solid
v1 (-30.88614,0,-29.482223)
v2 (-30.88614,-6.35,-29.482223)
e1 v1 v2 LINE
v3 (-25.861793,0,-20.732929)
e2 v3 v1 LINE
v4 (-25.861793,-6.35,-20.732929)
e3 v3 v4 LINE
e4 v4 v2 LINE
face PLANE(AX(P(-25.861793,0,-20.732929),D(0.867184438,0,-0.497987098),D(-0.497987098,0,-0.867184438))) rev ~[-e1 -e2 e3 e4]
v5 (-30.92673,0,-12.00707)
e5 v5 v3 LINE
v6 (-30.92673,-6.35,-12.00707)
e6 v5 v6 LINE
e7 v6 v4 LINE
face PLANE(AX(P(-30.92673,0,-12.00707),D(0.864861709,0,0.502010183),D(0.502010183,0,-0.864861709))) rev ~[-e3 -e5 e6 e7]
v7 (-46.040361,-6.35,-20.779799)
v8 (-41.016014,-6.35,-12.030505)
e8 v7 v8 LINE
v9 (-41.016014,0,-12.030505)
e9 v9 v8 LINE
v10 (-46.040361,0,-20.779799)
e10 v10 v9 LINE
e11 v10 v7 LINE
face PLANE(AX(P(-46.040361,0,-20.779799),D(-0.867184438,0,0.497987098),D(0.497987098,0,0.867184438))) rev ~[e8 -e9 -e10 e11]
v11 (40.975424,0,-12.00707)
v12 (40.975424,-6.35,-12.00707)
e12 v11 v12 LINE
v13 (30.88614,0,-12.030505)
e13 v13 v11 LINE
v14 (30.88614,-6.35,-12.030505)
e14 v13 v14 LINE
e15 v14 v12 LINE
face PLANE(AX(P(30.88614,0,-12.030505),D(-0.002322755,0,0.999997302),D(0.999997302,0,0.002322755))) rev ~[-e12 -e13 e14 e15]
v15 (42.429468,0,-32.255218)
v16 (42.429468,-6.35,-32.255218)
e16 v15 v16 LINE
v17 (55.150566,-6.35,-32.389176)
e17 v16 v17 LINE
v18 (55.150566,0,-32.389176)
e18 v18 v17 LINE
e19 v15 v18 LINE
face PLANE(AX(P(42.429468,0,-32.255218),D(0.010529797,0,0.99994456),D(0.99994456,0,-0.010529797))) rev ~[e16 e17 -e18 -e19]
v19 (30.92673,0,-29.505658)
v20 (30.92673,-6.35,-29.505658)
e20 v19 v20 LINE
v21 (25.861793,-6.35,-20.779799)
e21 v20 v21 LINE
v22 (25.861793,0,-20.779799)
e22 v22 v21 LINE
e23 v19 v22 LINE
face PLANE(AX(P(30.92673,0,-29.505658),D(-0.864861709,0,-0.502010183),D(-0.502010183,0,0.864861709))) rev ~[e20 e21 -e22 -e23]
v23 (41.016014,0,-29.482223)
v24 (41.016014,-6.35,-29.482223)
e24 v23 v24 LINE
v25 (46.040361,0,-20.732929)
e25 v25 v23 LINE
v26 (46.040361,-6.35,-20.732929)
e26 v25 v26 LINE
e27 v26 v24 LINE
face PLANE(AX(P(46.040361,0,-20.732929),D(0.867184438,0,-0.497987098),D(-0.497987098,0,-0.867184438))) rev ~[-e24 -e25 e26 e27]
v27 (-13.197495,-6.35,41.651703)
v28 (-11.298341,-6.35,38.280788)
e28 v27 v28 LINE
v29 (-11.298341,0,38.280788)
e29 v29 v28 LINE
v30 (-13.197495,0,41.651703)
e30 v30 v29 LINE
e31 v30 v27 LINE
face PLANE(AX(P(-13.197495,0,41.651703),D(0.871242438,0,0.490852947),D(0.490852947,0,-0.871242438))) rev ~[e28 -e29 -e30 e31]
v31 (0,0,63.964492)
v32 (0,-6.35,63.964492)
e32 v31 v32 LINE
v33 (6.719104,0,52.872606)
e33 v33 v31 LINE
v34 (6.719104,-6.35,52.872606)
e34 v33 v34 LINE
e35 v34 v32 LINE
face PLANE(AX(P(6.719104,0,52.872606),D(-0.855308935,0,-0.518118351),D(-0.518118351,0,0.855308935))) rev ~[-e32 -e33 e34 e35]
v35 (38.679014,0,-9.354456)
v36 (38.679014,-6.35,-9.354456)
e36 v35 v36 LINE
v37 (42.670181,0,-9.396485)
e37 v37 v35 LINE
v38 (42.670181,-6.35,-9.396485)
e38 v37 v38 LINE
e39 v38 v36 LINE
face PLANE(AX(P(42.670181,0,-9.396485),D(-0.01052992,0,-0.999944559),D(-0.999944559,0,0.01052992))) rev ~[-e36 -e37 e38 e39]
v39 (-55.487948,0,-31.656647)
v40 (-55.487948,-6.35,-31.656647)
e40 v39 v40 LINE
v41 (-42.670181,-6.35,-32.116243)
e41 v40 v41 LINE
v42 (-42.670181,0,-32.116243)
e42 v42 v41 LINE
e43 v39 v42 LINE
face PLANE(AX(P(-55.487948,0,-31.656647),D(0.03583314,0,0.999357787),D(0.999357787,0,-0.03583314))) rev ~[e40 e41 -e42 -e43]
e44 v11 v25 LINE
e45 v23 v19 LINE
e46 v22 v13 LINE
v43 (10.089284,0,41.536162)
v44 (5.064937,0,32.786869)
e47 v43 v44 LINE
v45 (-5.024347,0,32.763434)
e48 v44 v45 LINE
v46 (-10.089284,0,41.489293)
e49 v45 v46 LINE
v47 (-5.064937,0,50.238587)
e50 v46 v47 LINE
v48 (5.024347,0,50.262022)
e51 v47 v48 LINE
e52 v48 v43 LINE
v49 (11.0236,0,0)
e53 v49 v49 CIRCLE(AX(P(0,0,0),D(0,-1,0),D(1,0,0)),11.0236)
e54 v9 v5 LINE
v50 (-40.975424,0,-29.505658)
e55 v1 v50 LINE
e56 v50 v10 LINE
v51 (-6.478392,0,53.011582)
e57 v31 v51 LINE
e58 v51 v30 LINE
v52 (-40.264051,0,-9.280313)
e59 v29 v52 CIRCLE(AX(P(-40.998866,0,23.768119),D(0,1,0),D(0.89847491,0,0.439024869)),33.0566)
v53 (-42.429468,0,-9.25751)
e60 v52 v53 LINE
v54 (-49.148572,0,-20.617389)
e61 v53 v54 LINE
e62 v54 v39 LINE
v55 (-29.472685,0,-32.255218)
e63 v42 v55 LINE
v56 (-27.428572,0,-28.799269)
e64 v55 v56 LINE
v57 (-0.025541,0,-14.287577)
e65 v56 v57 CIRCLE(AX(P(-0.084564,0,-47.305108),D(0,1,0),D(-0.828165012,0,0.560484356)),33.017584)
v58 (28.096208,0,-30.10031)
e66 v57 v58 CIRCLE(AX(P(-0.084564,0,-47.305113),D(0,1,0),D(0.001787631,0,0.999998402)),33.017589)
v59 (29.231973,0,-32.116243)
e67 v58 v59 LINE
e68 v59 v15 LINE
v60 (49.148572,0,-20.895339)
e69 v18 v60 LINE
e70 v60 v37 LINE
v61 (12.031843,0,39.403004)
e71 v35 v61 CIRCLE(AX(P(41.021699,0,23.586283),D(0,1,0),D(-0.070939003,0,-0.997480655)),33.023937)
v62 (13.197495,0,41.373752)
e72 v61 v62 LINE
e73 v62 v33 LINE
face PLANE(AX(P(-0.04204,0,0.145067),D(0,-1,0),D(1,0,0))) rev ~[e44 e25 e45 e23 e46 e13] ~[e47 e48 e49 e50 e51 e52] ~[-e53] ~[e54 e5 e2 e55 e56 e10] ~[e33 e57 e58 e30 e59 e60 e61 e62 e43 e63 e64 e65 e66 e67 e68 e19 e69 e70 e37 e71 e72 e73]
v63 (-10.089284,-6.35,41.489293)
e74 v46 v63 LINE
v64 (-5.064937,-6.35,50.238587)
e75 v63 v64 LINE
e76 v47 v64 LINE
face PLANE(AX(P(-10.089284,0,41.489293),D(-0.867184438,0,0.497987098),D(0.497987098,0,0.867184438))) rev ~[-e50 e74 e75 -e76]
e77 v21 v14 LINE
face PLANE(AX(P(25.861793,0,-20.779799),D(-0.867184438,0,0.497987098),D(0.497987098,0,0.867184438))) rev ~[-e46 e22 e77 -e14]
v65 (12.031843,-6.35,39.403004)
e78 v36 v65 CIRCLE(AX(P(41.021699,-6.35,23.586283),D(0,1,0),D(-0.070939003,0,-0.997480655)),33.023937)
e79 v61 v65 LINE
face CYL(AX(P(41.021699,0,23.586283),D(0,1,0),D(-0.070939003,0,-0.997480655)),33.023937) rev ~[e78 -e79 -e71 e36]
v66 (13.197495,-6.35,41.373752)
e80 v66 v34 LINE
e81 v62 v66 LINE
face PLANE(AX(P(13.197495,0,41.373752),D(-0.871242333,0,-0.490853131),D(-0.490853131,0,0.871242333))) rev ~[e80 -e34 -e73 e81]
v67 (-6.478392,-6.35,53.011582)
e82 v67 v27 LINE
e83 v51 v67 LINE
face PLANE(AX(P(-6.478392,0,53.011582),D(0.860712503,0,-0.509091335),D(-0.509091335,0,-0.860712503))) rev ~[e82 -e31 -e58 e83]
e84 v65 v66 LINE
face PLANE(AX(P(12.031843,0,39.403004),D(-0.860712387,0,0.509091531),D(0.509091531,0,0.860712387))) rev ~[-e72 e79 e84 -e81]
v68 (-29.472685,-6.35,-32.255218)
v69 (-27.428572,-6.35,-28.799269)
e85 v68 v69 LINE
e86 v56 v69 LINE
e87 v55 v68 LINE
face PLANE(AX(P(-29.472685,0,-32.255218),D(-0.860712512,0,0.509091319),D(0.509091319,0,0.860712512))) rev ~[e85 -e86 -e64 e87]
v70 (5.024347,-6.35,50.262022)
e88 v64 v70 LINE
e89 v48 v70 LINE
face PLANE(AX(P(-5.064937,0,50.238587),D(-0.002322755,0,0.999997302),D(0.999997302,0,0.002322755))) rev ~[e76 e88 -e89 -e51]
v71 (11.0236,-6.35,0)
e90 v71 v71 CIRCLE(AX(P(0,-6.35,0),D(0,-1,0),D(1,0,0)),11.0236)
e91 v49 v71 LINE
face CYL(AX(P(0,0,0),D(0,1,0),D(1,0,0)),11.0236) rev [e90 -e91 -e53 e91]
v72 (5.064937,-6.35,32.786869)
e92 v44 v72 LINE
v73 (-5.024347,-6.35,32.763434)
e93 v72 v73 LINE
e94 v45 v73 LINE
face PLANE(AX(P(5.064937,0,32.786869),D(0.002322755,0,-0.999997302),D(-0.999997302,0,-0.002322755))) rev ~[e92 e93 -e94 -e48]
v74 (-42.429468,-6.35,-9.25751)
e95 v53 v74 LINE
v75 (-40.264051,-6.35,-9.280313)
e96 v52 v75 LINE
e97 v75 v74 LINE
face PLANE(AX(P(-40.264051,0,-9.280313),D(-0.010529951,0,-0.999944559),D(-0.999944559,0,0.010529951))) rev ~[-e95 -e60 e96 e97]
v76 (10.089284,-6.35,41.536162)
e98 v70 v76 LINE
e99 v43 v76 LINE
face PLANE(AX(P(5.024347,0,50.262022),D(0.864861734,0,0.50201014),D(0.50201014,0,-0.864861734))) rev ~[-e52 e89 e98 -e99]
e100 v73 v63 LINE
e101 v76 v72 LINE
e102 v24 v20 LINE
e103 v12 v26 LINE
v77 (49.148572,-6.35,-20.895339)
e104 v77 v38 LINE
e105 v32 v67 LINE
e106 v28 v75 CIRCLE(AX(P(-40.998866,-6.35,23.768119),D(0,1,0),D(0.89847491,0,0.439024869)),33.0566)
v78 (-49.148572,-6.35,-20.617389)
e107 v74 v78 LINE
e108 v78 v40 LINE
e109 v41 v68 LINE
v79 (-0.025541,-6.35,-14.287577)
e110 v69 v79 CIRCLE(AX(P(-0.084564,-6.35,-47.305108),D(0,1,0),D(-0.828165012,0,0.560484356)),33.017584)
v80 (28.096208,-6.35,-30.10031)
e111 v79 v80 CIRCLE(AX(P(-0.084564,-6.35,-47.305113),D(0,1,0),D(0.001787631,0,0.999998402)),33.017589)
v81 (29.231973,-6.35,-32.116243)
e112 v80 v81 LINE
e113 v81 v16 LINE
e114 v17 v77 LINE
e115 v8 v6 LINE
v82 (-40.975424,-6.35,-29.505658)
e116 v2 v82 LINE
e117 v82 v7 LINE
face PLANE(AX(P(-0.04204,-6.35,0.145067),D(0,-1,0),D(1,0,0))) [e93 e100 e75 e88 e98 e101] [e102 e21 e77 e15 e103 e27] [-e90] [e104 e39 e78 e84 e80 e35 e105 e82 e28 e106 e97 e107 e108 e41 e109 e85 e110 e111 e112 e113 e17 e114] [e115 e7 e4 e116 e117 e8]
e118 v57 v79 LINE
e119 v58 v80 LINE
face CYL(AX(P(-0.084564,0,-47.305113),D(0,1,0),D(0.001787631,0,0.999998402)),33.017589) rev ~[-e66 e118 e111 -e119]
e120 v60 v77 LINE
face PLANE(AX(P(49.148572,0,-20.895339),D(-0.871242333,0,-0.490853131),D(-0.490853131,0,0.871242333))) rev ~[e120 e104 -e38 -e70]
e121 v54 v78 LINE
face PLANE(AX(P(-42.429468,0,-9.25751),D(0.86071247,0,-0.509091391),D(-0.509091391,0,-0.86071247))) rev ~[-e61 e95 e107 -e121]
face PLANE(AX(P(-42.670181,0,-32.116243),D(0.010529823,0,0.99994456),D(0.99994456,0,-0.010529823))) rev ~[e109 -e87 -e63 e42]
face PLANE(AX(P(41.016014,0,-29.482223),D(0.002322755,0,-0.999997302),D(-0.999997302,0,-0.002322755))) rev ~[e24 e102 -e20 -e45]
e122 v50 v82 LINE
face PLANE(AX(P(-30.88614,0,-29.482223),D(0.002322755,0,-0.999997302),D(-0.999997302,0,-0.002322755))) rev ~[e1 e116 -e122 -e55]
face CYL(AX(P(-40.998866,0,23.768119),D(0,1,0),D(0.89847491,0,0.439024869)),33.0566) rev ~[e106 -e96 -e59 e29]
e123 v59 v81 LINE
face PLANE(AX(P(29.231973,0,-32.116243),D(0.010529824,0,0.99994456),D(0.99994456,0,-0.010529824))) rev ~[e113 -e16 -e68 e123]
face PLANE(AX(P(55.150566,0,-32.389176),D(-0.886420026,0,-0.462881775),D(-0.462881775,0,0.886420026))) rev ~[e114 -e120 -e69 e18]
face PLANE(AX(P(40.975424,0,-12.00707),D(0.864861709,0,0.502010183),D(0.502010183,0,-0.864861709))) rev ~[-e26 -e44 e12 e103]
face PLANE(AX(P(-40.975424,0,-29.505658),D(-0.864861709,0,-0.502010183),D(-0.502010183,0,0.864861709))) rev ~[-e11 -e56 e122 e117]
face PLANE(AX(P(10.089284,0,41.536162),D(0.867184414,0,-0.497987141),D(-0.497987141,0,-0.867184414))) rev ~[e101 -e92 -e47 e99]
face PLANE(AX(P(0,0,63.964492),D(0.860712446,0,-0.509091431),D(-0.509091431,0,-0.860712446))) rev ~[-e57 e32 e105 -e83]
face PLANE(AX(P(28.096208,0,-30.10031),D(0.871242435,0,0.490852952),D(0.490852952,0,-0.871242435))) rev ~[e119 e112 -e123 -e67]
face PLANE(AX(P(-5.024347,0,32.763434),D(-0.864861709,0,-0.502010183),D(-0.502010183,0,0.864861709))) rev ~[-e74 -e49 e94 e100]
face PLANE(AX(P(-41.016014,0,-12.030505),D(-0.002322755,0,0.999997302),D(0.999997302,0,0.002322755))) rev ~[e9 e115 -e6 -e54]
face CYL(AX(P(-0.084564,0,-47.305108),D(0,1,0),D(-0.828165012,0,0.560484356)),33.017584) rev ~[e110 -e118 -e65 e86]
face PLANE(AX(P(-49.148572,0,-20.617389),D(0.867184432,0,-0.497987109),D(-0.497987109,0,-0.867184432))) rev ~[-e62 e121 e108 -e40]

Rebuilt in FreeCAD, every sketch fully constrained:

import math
import FreeCAD as App
import Part
import Sketcher
Q = App.Units.Quantity


def add_polygon(sketch, points):
    """Adds a closed chain of lines whose ends are joined by coincident constraints."""
    first, n = sketch.GeometryCount, len(points)
    for a, b in zip(points, points[1:] + points[:1]):
        sketch.addGeometry(Part.LineSegment(App.Vector(*a, 0), App.Vector(*b, 0)), False)
    for i in range(n):
        sketch.addConstraint(Sketcher.Constraint("Coincident", first + i, 2, first + (i + 1) % n, 1))

doc = App.newDocument("Part")
body = doc.addObject("PartDesign::Body", "Body")

sketch1 = body.newObject("Sketcher::SketchObject", "Sketch")
sketch1.AttachmentSupport = (doc.getObject("XZ_Plane"), [""])
sketch1.MapMode = "FlatFace"
sketch1.addGeometry(Part.ArcOfCircle(Part.Circle(App.Vector(-0.084564, -47.305108, 0), App.Vector(0, 0, 1), 33.017584), math.radians(89.897577), math.radians(145.910699)), False)
sketch1.addGeometry(Part.ArcOfCircle(Part.Circle(App.Vector(-0.084564, -47.305113, 0), App.Vector(0, 0, 1), 33.017589), math.radians(31.404719), math.radians(89.897576)), False)
sketch1.addGeometry(Part.LineSegment(App.Vector(28.096208, -30.10031, 0), App.Vector(29.231973, -32.116243, 0)), False)
sketch1.addGeometry(Part.LineSegment(App.Vector(29.231973, -32.116243, 0), App.Vector(42.429468, -32.255218, 0)), False)
sketch1.addGeometry(Part.LineSegment(App.Vector(42.429468, -32.255218, 0), App.Vector(55.150566, -32.389176, 0)), False)
sketch1.addGeometry(Part.LineSegment(App.Vector(55.150566, -32.389176, 0), App.Vector(49.148572, -20.895339, 0)), False)
sketch1.addGeometry(Part.LineSegment(App.Vector(49.148572, -20.895339, 0), App.Vector(42.670181, -9.396485, 0)), False)
sketch1.addGeometry(Part.LineSegment(App.Vector(42.670181, -9.396485, 0), App.Vector(38.679014, -9.354456, 0)), False)
sketch1.addGeometry(Part.ArcOfCircle(Part.Circle(App.Vector(41.021699, 23.586283, 0), App.Vector(0, 0, 1), 33.023937), math.radians(151.383337), math.radians(265.932078)), False)
sketch1.addGeometry(Part.LineSegment(App.Vector(12.031843, 39.403004, 0), App.Vector(13.197495, 41.373752, 0)), False)
sketch1.addGeometry(Part.LineSegment(App.Vector(13.197495, 41.373752, 0), App.Vector(6.719104, 52.872606, 0)), False)
sketch1.addGeometry(Part.LineSegment(App.Vector(6.719104, 52.872606, 0), App.Vector(0, 63.964492, 0)), False)
sketch1.addGeometry(Part.LineSegment(App.Vector(0, 63.964492, 0), App.Vector(-6.478392, 53.011582, 0)), False)
sketch1.addGeometry(Part.LineSegment(App.Vector(-6.478392, 53.011582, 0), App.Vector(-13.197495, 41.651703, 0)), False)
sketch1.addGeometry(Part.LineSegment(App.Vector(-13.197495, 41.651703, 0), App.Vector(-11.298341, 38.280788, 0)), False)
sketch1.addGeometry(Part.ArcOfCircle(Part.Circle(App.Vector(-40.998866, 23.768119, 0), App.Vector(0, 0, 1), 33.0566), math.radians(-88.726267), math.radians(26.041681)), False)
sketch1.addGeometry(Part.LineSegment(App.Vector(-40.264051, -9.280313, 0), App.Vector(-42.429468, -9.25751, 0)), False)
sketch1.addGeometry(Part.LineSegment(App.Vector(-42.429468, -9.25751, 0), App.Vector(-49.148572, -20.617389, 0)), False)
sketch1.addGeometry(Part.LineSegment(App.Vector(-49.148572, -20.617389, 0), App.Vector(-55.487948, -31.656647, 0)), False)
sketch1.addGeometry(Part.LineSegment(App.Vector(-55.487948, -31.656647, 0), App.Vector(-42.670181, -32.116243, 0)), False)
sketch1.addGeometry(Part.LineSegment(App.Vector(-42.670181, -32.116243, 0), App.Vector(-29.472685, -32.255218, 0)), False)
sketch1.addGeometry(Part.LineSegment(App.Vector(-29.472685, -32.255218, 0), App.Vector(-27.428572, -28.799269, 0)), False)
add_polygon(sketch1, [(-46.040361, -20.779799), (-41.016014, -12.030505), (-30.92673, -12.00707), (-25.861793, -20.732929), (-30.88614, -29.482223), (-40.975424, -29.505658)])
add_polygon(sketch1, [(41.016014, -29.482223), (30.92673, -29.505658), (25.861793, -20.779799), (30.88614, -12.030505), (40.975424, -12.00707), (46.040361, -20.732929)])
sketch1.addGeometry(Part.Circle(App.Vector(0, 0, 0), App.Vector(0, 0, 1), 11.0236), False)
add_polygon(sketch1, [(5.064937, 32.786869), (-5.024347, 32.763434), (-10.089284, 41.489293), (-5.064937, 50.238587), (5.024347, 50.262022), (10.089284, 41.536162)])
sketch1.addConstraint([
    Sketcher.Constraint("Tangent", 0, 1, 1, 2),
    Sketcher.Constraint("Coincident", 1, 1, 2, 1),
    Sketcher.Constraint("Coincident", 2, 2, 3, 1),
    Sketcher.Constraint("Coincident", 3, 2, 4, 1),
    Sketcher.Constraint("Coincident", 4, 2, 5, 1),
    Sketcher.Constraint("Coincident", 5, 2, 6, 1),
    Sketcher.Constraint("Coincident", 6, 2, 7, 1),
    Sketcher.Constraint("Coincident", 7, 2, 8, 2),
    Sketcher.Constraint("Coincident", 8, 1, 9, 1),
    Sketcher.Constraint("Coincident", 9, 2, 10, 1),
    Sketcher.Constraint("Coincident", 10, 2, 11, 1),
    Sketcher.Constraint("Coincident", 11, 2, 12, 1),
    Sketcher.Constraint("Coincident", 12, 2, 13, 1),
    Sketcher.Constraint("Coincident", 13, 2, 14, 1),
    Sketcher.Constraint("Coincident", 14, 2, 15, 2),
    Sketcher.Constraint("Coincident", 15, 1, 16, 1),
    Sketcher.Constraint("Coincident", 16, 2, 17, 1),
    Sketcher.Constraint("Coincident", 17, 2, 18, 1),
    Sketcher.Constraint("Coincident", 18, 2, 19, 1),
    Sketcher.Constraint("Coincident", 19, 2, 20, 1),
    Sketcher.Constraint("Coincident", 20, 2, 21, 1),
    Sketcher.Constraint("Coincident", 21, 2, 0, 2),
    Sketcher.Constraint("Coincident", 34, 3, -1, 1),
    Sketcher.Constraint("PointOnObject", 11, 2, -2),
    Sketcher.Constraint("Parallel", 3, 4),
    Sketcher.Constraint("Parallel", 2, 6),
    Sketcher.Constraint("Parallel", 4, 7),
    Sketcher.Constraint("Parallel", 6, 10),
    Sketcher.Constraint("Parallel", 9, 12),
    Sketcher.Constraint("Parallel", 12, 13),
    Sketcher.Constraint("Parallel", 10, 14),
    Sketcher.Constraint("Parallel", 7, 16),
    Sketcher.Constraint("Parallel", 13, 17),
    Sketcher.Constraint("Parallel", 16, 20),
    Sketcher.Constraint("Parallel", 17, 21),
    Sketcher.Constraint("Parallel", 18, 22),
    Sketcher.Constraint("Parallel", 22, 25),
    Sketcher.Constraint("Parallel", 23, 26),
    Sketcher.Constraint("Parallel", 24, 27),
    Sketcher.Constraint("Parallel", 26, 28),
    Sketcher.Constraint("Parallel", 27, 29),
    Sketcher.Constraint("Parallel", 25, 30),
    Sketcher.Constraint("Parallel", 28, 31),
    Sketcher.Constraint("Parallel", 29, 32),
    Sketcher.Constraint("Parallel", 30, 33),
    Sketcher.Constraint("Parallel", 31, 35),
    Sketcher.Constraint("Parallel", 32, 36),
    Sketcher.Constraint("Parallel", 33, 37),
    Sketcher.Constraint("Parallel", 35, 38),
    Sketcher.Constraint("Parallel", 36, 39),
    Sketcher.Constraint("Parallel", 37, 40),
    Sketcher.Constraint("Horizontal", 2, 2, 19, 2),
    Sketcher.Constraint("Horizontal", 3, 2, 20, 2),
    Sketcher.Constraint("Horizontal", 26, 2, 28, 2),
    Sketcher.Constraint("Horizontal", 27, 2, 29, 2),
    Sketcher.Constraint("Horizontal", 22, 2, 30, 2),
    Sketcher.Constraint("Horizontal", 24, 2, 32, 2),
    Sketcher.Constraint("Equal", 3, 6),
    Sketcher.Constraint("Equal", 6, 10),
    Sketcher.Constraint("Equal", 10, 13),
    Sketcher.Constraint("Equal", 13, 17),
    Sketcher.Constraint("Equal", 22, 23),
    Sketcher.Constraint("Equal", 23, 24),
    Sketcher.Constraint("Equal", 24, 25),
    Sketcher.Constraint("Equal", 27, 28),
    Sketcher.Constraint("Equal", 33, 35),
    Sketcher.Constraint("Equal", 35, 36),
    Sketcher.Constraint("Equal", 36, 37),
    Sketcher.Constraint("Equal", 37, 38),
    Sketcher.Constraint("Diameter", 34, Q("0.868 in")),
    Sketcher.Constraint("Radius", 15, 33.0566),
    Sketcher.Constraint("Distance", 12, Q("0.501 in")),
    Sketcher.Constraint("Radius", 1, 33.017589),
    Sketcher.Constraint("DistanceY", 1, 3, 8, 3, Q("2.7909998 in")),
    Sketcher.Constraint("Radius", 0, 33.017584),
    Sketcher.Constraint("Radius", 8, 33.023937),
    Sketcher.Constraint("DistanceX", 0, 1, 8, 1, Q("0.4747002 in")),
    Sketcher.Constraint("Distance", 18, 12.73),
    Sketcher.Constraint("DistanceX", -1, 1, 8, 3, 41.021699),
    Sketcher.Constraint("DistanceY", 27, 2, -1, 1, 20.779799),
    Sketcher.Constraint("DistanceY", 0, 3, 1, 1, 17.204798),
    Sketcher.Constraint("DistanceX", 2, 2, 5, 2, 19.916599),
    Sketcher.Constraint("DistanceX", 13, 2, 10, 2, 19.916599),
    Sketcher.Constraint("DistanceY", 8, 1, 13, 2, 2.248699),
    Sketcher.Constraint("DistanceY", 1, 3, 15, 1, 38.0248),
    Sketcher.Constraint("DistanceX", 16, 2, 15, 3, 1.430602),
    Sketcher.Constraint("DistanceX", 17, 2, 21, 2, 21.72),
    Sketcher.Constraint("DistanceY", 21, 2, 23, 2, 16.792199),
    Sketcher.Constraint("DistanceY", 28, 2, 7, 2, 20.151202),
    Sketcher.Constraint("DistanceY", 14, 2, 37, 2, 11.957799),
    Sketcher.Constraint("Distance", 2, 2.31386),
    Sketcher.Constraint("Distance", 5, 12.966581),
    Sketcher.Constraint("Distance", 7, 3.991388),
    Sketcher.Constraint("Distance", 9, 2.289671),
    Sketcher.Constraint("Distance", 11, 12.96828),
    Sketcher.Constraint("Distance", 14, 3.86909),
    Sketcher.Constraint("Distance", 21, 4.015219),
    Sketcher.Constraint("Distance", 22, 10.089312),
    Sketcher.Constraint("DistanceY", 0, 3, -1, 1, 47.305108),
    Sketcher.Constraint("DistanceY", -1, 1, 15, 3, 23.768119),
    Sketcher.Constraint("DistanceX", 0, 1, -1, 1, 0.025541),
    Sketcher.Constraint("DistanceX", -1, 1, 1, 1, 28.096208),
    Sketcher.Constraint("DistanceY", 5, 2, -1, 1, 20.895339),
    Sketcher.Constraint("DistanceX", 18, 2, -1, 1, 55.487948),
    Sketcher.Constraint("DistanceX", 23, 2, -1, 1, 30.92673),
    Sketcher.Constraint("DistanceX", -1, 1, 28, 2, 30.92673),
    Sketcher.Constraint("DistanceX", 13, 2, 35, 2, 8.173148),
])
pad1 = body.newObject("PartDesign::Pad", "Pad")
pad1.Profile = sketch1
pad1.Length = Q("0.25 in")

doc.recompute()
